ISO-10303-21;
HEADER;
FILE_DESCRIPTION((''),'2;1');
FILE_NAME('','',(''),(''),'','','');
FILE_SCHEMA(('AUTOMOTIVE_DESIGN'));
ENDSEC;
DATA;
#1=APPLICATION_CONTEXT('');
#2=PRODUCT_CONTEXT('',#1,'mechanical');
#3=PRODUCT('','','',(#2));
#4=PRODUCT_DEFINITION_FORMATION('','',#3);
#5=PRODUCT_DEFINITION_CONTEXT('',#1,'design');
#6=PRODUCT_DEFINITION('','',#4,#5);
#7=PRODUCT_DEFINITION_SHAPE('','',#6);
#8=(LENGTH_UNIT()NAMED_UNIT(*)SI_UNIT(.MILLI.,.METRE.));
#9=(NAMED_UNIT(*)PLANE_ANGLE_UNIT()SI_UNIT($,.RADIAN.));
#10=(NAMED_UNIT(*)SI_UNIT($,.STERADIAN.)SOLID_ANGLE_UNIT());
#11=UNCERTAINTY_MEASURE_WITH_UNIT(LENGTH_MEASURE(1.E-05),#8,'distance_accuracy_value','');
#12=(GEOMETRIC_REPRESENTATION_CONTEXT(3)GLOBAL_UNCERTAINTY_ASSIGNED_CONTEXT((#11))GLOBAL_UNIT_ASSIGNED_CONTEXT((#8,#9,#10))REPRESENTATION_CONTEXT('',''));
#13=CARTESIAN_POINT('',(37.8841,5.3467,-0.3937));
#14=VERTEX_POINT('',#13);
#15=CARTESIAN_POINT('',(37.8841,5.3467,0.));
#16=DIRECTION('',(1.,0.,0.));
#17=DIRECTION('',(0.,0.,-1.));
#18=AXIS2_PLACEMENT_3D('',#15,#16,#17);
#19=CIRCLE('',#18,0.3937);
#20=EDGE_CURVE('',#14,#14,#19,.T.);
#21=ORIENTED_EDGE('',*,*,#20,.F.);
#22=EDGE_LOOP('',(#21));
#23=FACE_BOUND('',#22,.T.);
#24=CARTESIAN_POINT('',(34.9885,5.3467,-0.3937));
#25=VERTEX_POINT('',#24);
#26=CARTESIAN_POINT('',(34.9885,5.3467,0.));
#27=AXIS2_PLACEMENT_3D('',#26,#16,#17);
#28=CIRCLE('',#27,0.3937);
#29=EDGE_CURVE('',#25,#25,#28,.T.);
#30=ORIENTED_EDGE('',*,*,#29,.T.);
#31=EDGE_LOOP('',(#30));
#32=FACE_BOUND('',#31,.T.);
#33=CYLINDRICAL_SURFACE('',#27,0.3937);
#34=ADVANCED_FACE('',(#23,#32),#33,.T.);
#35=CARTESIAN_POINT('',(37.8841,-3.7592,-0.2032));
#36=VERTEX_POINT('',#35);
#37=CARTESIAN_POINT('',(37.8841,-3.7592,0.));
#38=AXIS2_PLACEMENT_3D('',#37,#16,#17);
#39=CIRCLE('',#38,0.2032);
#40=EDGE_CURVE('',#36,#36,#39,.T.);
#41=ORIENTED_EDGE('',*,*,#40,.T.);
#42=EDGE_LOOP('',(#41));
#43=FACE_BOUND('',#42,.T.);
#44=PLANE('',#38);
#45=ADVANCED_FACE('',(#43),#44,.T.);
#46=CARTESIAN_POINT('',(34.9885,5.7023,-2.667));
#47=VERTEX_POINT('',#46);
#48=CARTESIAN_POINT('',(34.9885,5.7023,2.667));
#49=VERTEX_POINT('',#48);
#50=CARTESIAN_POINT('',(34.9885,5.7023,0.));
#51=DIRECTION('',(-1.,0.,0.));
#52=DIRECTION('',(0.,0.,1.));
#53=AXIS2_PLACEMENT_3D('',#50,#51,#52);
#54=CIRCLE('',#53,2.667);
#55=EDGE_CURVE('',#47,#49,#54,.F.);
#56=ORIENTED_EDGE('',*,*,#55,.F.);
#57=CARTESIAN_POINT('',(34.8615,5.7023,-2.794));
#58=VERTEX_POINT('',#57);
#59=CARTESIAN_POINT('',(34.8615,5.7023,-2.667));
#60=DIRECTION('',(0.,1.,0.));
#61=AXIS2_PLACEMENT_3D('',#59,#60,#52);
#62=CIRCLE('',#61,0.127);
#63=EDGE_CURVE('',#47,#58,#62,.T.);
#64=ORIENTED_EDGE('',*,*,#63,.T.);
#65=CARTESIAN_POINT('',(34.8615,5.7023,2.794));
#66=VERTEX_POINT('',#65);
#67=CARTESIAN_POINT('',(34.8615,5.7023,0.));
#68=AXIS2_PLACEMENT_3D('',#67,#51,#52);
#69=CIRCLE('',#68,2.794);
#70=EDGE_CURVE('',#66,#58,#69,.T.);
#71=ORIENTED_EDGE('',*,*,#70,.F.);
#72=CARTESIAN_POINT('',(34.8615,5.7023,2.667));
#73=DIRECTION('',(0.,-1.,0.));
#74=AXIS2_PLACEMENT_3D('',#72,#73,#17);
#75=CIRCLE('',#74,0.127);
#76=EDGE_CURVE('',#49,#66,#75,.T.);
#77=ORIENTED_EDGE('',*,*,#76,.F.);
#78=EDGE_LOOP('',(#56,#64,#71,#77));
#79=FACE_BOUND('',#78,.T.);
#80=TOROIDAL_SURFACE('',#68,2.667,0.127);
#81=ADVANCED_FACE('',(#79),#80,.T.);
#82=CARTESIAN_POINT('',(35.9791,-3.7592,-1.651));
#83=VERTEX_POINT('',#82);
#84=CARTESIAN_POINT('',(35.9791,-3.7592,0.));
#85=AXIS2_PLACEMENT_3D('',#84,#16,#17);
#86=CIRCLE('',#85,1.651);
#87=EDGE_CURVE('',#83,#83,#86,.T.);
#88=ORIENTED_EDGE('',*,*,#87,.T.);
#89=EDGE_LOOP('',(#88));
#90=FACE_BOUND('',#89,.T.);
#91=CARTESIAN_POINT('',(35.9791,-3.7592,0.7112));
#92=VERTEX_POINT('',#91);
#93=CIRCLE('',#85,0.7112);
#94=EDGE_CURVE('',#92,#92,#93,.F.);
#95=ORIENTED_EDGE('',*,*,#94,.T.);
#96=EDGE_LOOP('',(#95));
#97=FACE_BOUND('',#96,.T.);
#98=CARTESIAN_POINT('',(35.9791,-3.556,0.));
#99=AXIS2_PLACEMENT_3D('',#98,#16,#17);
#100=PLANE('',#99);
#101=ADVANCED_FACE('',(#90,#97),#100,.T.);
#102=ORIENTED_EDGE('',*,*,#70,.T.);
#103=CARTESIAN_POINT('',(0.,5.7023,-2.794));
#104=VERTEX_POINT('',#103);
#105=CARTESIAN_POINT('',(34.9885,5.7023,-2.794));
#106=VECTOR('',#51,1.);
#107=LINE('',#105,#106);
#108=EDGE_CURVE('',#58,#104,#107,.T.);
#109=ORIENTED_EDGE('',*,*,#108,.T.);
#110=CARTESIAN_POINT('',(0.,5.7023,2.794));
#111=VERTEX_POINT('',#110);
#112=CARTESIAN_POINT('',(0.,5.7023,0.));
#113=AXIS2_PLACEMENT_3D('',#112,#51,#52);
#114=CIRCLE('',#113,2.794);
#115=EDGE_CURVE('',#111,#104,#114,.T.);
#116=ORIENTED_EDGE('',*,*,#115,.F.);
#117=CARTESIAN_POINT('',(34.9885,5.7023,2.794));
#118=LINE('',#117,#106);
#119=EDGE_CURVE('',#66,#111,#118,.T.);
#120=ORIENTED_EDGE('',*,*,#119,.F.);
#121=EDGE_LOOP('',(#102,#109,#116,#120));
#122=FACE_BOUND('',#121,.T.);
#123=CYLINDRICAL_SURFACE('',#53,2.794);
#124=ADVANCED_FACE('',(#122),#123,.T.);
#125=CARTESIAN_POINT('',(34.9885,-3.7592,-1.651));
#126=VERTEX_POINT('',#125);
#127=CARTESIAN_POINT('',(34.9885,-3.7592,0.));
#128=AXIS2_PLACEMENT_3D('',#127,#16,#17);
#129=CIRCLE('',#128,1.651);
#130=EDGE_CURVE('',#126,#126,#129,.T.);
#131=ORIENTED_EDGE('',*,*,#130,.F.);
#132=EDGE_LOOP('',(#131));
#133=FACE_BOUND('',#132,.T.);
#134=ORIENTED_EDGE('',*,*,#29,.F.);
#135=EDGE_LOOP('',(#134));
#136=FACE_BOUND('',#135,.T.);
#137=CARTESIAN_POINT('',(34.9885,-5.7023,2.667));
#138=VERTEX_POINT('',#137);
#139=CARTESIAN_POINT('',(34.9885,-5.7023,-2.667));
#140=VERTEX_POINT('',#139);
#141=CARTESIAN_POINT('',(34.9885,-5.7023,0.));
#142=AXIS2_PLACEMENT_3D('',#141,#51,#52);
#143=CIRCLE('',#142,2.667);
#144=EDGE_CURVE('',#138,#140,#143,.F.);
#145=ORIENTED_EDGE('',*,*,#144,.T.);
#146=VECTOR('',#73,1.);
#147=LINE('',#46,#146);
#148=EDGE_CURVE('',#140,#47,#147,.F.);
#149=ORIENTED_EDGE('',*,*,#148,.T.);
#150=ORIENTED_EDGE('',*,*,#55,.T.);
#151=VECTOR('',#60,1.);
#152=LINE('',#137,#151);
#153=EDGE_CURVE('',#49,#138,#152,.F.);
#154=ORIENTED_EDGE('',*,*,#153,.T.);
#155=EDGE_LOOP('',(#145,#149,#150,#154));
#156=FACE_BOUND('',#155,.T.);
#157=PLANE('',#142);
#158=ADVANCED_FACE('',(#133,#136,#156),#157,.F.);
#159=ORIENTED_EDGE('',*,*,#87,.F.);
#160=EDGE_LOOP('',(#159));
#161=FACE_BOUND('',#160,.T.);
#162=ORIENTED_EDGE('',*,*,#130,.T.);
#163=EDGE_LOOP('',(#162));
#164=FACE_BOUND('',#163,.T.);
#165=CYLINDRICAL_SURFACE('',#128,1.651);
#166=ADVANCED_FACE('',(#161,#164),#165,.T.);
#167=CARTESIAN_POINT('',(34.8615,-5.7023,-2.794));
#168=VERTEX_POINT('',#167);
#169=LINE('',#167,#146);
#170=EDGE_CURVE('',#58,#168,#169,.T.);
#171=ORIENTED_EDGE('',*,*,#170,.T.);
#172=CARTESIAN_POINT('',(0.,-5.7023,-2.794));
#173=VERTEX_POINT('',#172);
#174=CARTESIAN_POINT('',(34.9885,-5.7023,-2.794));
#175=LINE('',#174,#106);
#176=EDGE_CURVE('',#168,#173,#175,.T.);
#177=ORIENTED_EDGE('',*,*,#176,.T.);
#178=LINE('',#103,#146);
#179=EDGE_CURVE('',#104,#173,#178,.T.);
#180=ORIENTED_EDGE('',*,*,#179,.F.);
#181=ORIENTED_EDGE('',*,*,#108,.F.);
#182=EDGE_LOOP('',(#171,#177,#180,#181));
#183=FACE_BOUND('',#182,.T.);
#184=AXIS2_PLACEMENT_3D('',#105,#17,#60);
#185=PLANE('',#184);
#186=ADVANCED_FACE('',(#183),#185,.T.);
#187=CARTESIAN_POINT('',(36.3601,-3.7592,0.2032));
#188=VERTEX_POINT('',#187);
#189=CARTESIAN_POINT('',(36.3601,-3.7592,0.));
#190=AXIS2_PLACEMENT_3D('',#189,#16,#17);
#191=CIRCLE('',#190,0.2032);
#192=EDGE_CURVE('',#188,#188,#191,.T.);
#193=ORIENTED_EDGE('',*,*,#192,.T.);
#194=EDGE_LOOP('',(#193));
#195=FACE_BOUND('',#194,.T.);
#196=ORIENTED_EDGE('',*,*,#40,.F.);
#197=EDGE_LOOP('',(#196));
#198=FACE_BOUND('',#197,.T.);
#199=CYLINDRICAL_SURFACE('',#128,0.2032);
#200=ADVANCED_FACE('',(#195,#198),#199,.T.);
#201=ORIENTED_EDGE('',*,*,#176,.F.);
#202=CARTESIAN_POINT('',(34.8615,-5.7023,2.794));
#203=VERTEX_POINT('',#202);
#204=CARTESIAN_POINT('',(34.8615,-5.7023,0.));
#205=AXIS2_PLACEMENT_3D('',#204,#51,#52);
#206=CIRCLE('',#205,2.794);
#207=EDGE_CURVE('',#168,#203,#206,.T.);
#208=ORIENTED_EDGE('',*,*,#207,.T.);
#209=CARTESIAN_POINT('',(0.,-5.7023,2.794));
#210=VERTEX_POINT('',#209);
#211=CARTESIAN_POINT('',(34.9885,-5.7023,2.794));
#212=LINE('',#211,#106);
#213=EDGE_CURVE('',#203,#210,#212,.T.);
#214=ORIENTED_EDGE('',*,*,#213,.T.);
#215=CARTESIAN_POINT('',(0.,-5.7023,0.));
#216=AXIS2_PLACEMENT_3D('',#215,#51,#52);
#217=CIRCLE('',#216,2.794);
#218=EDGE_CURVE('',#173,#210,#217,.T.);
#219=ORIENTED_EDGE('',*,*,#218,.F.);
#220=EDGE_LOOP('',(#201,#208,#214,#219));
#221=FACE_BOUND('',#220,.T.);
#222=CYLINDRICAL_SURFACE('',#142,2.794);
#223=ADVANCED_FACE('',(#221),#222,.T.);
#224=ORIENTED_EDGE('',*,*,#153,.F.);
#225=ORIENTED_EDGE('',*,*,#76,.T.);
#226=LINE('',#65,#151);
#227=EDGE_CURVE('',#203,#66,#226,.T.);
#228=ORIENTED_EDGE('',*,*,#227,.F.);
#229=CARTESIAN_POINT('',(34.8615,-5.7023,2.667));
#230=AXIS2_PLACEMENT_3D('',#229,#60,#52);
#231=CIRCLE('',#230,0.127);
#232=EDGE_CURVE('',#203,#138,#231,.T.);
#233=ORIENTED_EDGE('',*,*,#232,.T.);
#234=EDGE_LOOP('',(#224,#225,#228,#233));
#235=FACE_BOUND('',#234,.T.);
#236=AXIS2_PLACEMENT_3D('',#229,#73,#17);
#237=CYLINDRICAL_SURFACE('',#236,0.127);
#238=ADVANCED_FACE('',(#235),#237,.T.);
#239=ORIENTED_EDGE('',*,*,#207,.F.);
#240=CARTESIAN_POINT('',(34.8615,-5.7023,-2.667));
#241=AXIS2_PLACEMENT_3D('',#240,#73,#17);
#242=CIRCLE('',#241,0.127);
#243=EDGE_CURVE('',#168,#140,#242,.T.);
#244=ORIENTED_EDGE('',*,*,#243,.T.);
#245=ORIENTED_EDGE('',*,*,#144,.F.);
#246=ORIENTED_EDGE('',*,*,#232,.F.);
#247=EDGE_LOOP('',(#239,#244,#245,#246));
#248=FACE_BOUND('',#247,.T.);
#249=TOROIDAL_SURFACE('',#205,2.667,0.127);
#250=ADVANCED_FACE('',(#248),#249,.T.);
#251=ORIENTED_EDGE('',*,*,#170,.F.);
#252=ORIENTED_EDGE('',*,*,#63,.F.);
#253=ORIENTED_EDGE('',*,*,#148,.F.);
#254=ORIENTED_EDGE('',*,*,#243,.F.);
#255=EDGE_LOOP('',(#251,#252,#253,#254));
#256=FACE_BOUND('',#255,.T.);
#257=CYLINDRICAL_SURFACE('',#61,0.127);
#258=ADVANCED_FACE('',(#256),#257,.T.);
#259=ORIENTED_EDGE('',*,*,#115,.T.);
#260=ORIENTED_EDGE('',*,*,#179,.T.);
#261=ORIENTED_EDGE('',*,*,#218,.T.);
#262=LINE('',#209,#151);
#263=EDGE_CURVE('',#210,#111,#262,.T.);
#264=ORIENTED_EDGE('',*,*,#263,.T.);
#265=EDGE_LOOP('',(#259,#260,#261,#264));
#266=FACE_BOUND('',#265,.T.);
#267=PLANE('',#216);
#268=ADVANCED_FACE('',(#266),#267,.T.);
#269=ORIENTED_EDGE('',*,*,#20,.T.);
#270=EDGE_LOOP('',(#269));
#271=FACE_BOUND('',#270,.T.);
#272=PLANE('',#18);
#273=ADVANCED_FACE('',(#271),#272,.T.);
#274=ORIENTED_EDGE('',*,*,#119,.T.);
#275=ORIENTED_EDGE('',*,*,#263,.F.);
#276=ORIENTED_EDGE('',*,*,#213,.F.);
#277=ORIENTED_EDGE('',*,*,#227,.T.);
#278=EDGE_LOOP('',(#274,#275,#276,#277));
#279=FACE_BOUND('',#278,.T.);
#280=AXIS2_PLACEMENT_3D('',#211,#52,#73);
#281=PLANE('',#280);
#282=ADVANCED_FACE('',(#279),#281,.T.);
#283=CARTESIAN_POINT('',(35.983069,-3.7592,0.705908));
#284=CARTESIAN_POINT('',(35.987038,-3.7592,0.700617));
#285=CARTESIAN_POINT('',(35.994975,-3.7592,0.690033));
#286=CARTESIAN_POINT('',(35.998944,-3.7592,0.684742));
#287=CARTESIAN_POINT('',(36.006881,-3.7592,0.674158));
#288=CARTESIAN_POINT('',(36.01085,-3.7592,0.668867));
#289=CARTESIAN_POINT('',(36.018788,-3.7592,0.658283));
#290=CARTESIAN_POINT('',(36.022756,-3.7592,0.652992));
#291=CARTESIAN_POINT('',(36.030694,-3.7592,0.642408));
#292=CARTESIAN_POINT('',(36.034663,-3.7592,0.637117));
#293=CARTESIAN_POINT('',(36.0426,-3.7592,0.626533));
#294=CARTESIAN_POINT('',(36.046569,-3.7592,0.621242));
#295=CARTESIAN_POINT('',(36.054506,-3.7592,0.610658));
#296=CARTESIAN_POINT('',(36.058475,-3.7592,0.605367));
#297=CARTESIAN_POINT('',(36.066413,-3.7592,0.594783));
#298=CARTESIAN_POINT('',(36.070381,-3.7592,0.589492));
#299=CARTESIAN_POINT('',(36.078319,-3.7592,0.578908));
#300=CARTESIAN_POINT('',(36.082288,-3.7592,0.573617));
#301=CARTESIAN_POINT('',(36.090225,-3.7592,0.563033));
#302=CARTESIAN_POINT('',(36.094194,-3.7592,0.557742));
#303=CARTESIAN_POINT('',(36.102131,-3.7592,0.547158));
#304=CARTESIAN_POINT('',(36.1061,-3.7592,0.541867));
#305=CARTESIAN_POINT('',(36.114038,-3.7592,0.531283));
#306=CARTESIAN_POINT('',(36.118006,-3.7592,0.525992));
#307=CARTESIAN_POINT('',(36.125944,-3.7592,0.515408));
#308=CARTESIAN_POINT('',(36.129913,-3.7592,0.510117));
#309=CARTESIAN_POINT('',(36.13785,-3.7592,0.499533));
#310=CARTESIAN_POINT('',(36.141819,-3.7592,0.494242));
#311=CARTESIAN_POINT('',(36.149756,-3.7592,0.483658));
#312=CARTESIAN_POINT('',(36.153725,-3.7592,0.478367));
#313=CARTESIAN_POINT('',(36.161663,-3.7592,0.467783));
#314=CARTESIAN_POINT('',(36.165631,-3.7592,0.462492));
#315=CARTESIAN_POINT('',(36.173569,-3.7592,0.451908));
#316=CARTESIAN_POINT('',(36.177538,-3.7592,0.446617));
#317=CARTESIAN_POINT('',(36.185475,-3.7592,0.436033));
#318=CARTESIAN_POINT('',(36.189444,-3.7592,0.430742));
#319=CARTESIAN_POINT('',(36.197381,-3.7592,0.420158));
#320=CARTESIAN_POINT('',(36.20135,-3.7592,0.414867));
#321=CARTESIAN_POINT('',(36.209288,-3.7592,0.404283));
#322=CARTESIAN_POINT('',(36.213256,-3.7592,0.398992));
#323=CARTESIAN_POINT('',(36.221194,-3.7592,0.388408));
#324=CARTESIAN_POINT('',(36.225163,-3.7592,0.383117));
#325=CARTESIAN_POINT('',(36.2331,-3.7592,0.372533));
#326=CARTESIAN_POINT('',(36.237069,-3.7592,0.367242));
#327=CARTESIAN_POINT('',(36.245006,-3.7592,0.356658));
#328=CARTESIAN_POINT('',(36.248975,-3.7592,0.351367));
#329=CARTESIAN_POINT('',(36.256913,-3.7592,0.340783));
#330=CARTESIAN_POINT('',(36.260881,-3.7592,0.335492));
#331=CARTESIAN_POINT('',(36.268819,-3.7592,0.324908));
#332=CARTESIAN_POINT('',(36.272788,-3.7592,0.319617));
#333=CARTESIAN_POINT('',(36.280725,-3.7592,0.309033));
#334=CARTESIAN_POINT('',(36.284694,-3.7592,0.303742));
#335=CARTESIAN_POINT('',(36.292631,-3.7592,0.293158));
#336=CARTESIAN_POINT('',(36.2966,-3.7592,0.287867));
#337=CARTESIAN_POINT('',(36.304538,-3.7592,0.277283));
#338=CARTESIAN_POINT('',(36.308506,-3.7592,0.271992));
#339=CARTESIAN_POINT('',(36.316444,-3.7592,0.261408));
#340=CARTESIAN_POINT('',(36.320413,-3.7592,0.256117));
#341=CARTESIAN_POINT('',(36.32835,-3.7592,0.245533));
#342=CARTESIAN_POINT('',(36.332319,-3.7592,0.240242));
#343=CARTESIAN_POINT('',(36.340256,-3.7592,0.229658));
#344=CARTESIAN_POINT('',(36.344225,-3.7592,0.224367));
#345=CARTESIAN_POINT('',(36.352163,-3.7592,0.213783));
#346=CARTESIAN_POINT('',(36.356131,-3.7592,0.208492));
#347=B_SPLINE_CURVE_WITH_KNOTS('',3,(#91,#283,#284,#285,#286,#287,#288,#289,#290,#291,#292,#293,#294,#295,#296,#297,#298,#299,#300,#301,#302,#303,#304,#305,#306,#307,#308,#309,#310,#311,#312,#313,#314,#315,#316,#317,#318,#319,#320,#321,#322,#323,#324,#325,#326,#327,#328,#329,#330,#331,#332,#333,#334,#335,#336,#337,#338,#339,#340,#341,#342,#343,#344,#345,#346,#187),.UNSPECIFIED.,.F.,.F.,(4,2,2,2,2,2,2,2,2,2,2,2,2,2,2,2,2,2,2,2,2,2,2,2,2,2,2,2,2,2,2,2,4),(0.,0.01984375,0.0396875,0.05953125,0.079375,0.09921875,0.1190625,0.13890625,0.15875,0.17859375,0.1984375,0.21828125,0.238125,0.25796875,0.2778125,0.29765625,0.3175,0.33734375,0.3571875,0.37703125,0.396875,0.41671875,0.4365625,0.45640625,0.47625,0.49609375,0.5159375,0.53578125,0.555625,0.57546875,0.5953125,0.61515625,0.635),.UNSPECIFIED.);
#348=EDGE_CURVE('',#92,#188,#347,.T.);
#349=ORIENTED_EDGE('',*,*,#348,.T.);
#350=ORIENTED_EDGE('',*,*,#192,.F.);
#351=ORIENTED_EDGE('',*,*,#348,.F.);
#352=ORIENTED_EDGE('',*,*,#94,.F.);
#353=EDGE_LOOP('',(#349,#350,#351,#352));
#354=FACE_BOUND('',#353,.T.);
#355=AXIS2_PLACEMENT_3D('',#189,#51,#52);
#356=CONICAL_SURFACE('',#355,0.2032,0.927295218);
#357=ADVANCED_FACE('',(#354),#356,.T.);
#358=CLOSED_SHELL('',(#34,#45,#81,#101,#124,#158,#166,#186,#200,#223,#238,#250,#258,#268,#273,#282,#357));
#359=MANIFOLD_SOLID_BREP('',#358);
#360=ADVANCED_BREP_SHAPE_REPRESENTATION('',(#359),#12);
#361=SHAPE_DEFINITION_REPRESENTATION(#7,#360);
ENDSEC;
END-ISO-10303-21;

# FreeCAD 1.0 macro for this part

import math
import FreeCAD as App
import Part
import Sketcher
from FreeCAD import Vector
Q = App.Units.Quantity


def edges_at(feature, points):
    """Names of the edges that pass closest to the given points."""
    edges = feature.Shape.Edges
    near = lambda p: min(range(len(edges)), key=lambda i: edges[i].distToShape(Part.Vertex(*p))[0])
    return sorted({f"Edge{near(p) + 1}" for p in points})


def add_polygon(sketch, points):
    """Adds a closed chain of lines whose ends are joined by coincident constraints."""
    first, n = sketch.GeometryCount, len(points)
    for a, b in zip(points, points[1:] + points[:1]):
        sketch.addGeometry(Part.LineSegment(App.Vector(*a, 0), App.Vector(*b, 0)), False)
    for i in range(n):
        sketch.addConstraint(Sketcher.Constraint("Coincident", first + i, 2, first + (i + 1) % n, 1))

doc = App.newDocument("Part")
params = doc.addObject("Spreadsheet::Sheet", "Params")
for row, (alias, value) in enumerate([
    ("sketch1_radius", "0.11 in"),
    ("sketch1_width", "0.449 in"),
    ("pad1_length", "1.3775 in"),
    ("sketch2_width", "0.114 in"),
    ("revolution_angle", "360 deg"),
    ("sketch3_width", "0.114 in"),
    ("sketch3_width2", "0.075 in"),
    ("sketch3_height", "0.065 in"),
    ("sketch3_height2", "0.008 in"),
    ("revolution2_angle", "360 deg"),
    ("fillet_radius", "0.005 in"),
    ("chamfer_size", "0.02 in"),
    ("chamfer_size2", "0.015 in"),
], start=1):
    params.set(f"A{row}", alias)
    params.set(f"B{row}", "=" + value)
    params.setAlias(f"B{row}", alias)

body = doc.addObject("PartDesign::Body", "Body")

# Sketch on YZ plane
sketch1 = doc.addObject("Sketcher::SketchObject", "Sketch")
body.addObject(sketch1)
sketch1.AttachmentSupport = (doc.YZ_Plane, [""])
sketch1.MapMode = "FlatFace"
sketch1.addGeometry([
    Part.LineSegment(Vector(-5.7, 2.8, 0), Vector(5.7, 2.8, 0)),
    Part.ArcOfCircle(Part.Circle(Vector(5.7, 0, 0), Vector(0, 0, 1), 2.8), math.radians(-90), math.radians(90)),
    Part.LineSegment(Vector(5.7, -2.8, 0), Vector(-5.7, -2.8, 0)),
    Part.ArcOfCircle(Part.Circle(Vector(-5.7, 0, 0), Vector(0, 0, 1), 2.8), math.radians(90), math.radians(270)),
], False)
sketch1.addConstraint([
    Sketcher.Constraint("Tangent", 0, 2, 1, 2),
    Sketcher.Constraint("Tangent", 1, 1, 2, 1),
    Sketcher.Constraint("Tangent", 2, 2, 3, 2),
    Sketcher.Constraint("Tangent", 3, 1, 0, 1),
    Sketcher.Constraint("Horizontal", 0),
    Sketcher.Constraint("Horizontal", 2),
    Sketcher.Constraint("Symmetric", 1, 3, 3, 3, -1, 1),
    Sketcher.Constraint("Radius", 1, Q("0.11 in")),
    Sketcher.Constraint("DistanceX", 0, 1, 0, 2, Q("0.449 in")),
])
sketch1.setExpression("Constraints[7]", "Params.sketch1_radius")
sketch1.setExpression("Constraints[8]", "Params.sketch1_width")
pad1 = doc.addObject("PartDesign::Pad", "Pad")
body.addObject(pad1)
pad1.Profile = sketch1
pad1.setExpression("Length", "Params.pad1_length")

# Sketch on XY plane
sketch2 = doc.addObject("Sketcher::SketchObject", "Sketch001")
body.addObject(sketch2)
sketch2.AttachmentSupport = (doc.XY_Plane, [""])
sketch2.MapMode = "FlatFace"
add_polygon(sketch2, [(34.99, 5.74), (34.99, 5.35), (37.88, 5.35), (37.88, 5.74)])  # lines 0-3
sketch2.addGeometry(Part.LineSegment(Vector(34.99, 5.35, 0), Vector(37.88, 5.35, 0)), True)  # axis
sketch2.addConstraint([
    Sketcher.Constraint("Vertical", 0),
    Sketcher.Constraint("Horizontal", 1),
    Sketcher.Constraint("Vertical", 2),
    Sketcher.Constraint("Horizontal", 3),
    Sketcher.Constraint("Horizontal", 4),
    Sketcher.Constraint("Coincident", 4, 1, 0, 2),
    Sketcher.Constraint("Vertical", 2, 2, 4, 2),
    Sketcher.Constraint("DistanceX", 1, 1, 1, 2, Q("0.114 in")),
    Sketcher.Constraint("DistanceY", 0, 2, 0, 1, Q("0.0155 in")),
    Sketcher.Constraint("DistanceY", -1, 1, 2, 2, Q("0.226 in")),
    Sketcher.Constraint("DistanceX", -1, 1, 0, 2, Q("1.3775 in")),
])
sketch2.setExpression("Constraints[11]", "Params.sketch2_width")
revolution = doc.addObject("PartDesign::Revolution", "Revolution")
body.addObject(revolution)
revolution.Profile = sketch2
revolution.ReferenceAxis = (sketch2, ["Axis0"])
revolution.setExpression("Angle", "Params.revolution_angle")

# Sketch on XY plane
sketch3 = doc.addObject("Sketcher::SketchObject", "Sketch002")
body.addObject(sketch3)
sketch3.AttachmentSupport = (doc.XY_Plane, [""])
sketch3.MapMode = "FlatFace"
add_polygon(sketch3, [(34.99, -2.11), (34.99, -3.76), (37.88, -3.76), (37.88, -3.56), (35.98, -3.56), (35.98, -2.11)])  # lines 0-5
sketch3.addGeometry(Part.LineSegment(Vector(34.99, -3.76, 0), Vector(37.88, -3.76, 0)), True)  # axis
sketch3.addConstraint([
    Sketcher.Constraint("Vertical", 0),
    Sketcher.Constraint("Horizontal", 1),
    Sketcher.Constraint("Vertical", 2),
    Sketcher.Constraint("Horizontal", 3),
    Sketcher.Constraint("Vertical", 4),
    Sketcher.Constraint("Horizontal", 5),
    Sketcher.Constraint("Horizontal", 6),
    Sketcher.Constraint("Coincident", 6, 1, 0, 2),
    Sketcher.Constraint("Vertical", 2, 2, 6, 2),
    Sketcher.Constraint("DistanceX", 1, 1, 1, 2, Q("0.114 in")),
    Sketcher.Constraint("DistanceX", 3, 2, 3, 1, Q("0.075 in")),
    Sketcher.Constraint("DistanceY", 0, 2, 0, 1, Q("0.065 in")),
    Sketcher.Constraint("DistanceY", 2, 1, 2, 2, Q("0.008 in")),
    Sketcher.Constraint("DistanceY", 2, 2, -1, 1, Q("0.14 in")),
    Sketcher.Constraint("DistanceX", -1, 1, 0, 2, Q("1.3775 in")),
])
sketch3.setExpression("Constraints[15]", "Params.sketch3_width")
sketch3.setExpression("Constraints[16]", "Params.sketch3_width2")
sketch3.setExpression("Constraints[17]", "Params.sketch3_height")
sketch3.setExpression("Constraints[18]", "Params.sketch3_height2")
revolution2 = doc.addObject("PartDesign::Revolution", "Revolution001")
body.addObject(revolution2)
revolution2.Profile = sketch3
revolution2.ReferenceAxis = (sketch3, ["Axis0"])
revolution2.setExpression("Angle", "Params.revolution2_angle")
doc.recompute()

fillet = doc.addObject("PartDesign::Fillet", "Fillet")
body.addObject(fillet)
fillet.Base = (revolution2, edges_at(revolution2, [
    (34.989, 8.496, 0),
    (34.989, 0, -2.794),
    (34.989, -8.496, 0),
    (34.989, 0, 2.794),
]))
fillet.setExpression("Radius", "Params.fillet_radius")
doc.recompute()

chamfer = doc.addObject("PartDesign::Chamfer", "Chamfer")
body.addObject(chamfer)
chamfer.Base = (fillet, edges_at(fillet, [(35.979, -3.759, 0.203)]))
chamfer.ChamferType = "Two distances"
chamfer.setExpression("Size", "Params.chamfer_size")
chamfer.setExpression("Size2", "Params.chamfer_size2")

doc.recompute()
